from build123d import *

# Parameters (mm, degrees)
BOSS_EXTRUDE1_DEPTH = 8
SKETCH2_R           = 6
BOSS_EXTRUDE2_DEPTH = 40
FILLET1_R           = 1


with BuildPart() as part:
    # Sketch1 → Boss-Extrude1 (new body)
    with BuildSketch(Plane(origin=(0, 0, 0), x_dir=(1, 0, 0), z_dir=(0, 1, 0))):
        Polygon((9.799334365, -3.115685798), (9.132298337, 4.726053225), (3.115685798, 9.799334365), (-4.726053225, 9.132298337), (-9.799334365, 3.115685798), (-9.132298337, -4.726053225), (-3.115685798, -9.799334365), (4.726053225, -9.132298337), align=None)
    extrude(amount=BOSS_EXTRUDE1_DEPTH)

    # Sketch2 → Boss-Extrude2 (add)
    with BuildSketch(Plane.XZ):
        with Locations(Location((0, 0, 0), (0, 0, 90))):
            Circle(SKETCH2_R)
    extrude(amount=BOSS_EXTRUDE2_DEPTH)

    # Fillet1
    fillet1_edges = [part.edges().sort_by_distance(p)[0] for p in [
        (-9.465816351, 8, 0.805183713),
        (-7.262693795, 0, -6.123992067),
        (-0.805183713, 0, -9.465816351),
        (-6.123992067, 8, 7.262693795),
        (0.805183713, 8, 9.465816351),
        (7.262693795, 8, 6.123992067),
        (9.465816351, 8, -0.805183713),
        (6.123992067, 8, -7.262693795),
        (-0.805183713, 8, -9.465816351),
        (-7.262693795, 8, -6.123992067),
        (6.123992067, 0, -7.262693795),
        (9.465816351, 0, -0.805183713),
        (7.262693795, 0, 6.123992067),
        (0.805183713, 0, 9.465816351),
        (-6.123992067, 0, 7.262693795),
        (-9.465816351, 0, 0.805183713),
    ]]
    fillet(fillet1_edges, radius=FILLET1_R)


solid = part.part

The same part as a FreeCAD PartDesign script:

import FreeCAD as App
import Part
import Sketcher

V = App.Vector


def edges_at(feature, points):
    """Names of the edges that pass closest to the given points."""
    edges = feature.Shape.Edges
    near = lambda p: min(range(len(edges)), key=lambda i: edges[i].distToShape(Part.Vertex(*p))[0])
    return sorted({f"Edge{near(p) + 1}" for p in points})

doc = App.newDocument("Part")
body = doc.addObject("PartDesign::Body", "Body")

sketch1 = doc.addObject("Sketcher::SketchObject", "Sketch")
body.addObject(sketch1)
sketch1.AttachmentSupport = (doc.XZ_Plane, [""])
sketch1.MapMode = "FlatFace"
sketch1.addGeometry(Part.LineSegment(V(9.799334, 3.115686, 0), V(9.132298, -4.726053, 0)), False)
sketch1.addGeometry(Part.LineSegment(V(9.132298, -4.726053, 0), V(3.115686, -9.799334, 0)), False)
sketch1.addGeometry(Part.LineSegment(V(3.115686, -9.799334, 0), V(-4.726053, -9.132298, 0)), False)
sketch1.addGeometry(Part.LineSegment(V(-4.726053, -9.132298, 0), V(-9.799334, -3.115686, 0)), False)
sketch1.addGeometry(Part.LineSegment(V(-9.799334, -3.115686, 0), V(-9.132298, 4.726053, 0)), False)
sketch1.addGeometry(Part.LineSegment(V(-9.132298, 4.726053, 0), V(-3.115686, 9.799334, 0)), False)
sketch1.addGeometry(Part.LineSegment(V(-3.115686, 9.799334, 0), V(4.726053, 9.132298, 0)), False)
sketch1.addGeometry(Part.LineSegment(V(4.726053, 9.132298, 0), V(9.799334, 3.115686, 0)), False)
sketch1.addConstraint(Sketcher.Constraint("Coincident", 0, 2, 1, 1))
sketch1.addConstraint(Sketcher.Constraint("Coincident", 1, 2, 2, 1))
sketch1.addConstraint(Sketcher.Constraint("Coincident", 2, 2, 3, 1))
sketch1.addConstraint(Sketcher.Constraint("Coincident", 3, 2, 4, 1))
sketch1.addConstraint(Sketcher.Constraint("Coincident", 4, 2, 5, 1))
sketch1.addConstraint(Sketcher.Constraint("Coincident", 5, 2, 6, 1))
sketch1.addConstraint(Sketcher.Constraint("Coincident", 6, 2, 7, 1))
sketch1.addConstraint(Sketcher.Constraint("Coincident", 7, 2, 0, 1))
sketch1.addConstraint(Sketcher.Constraint("Symmetric", 0, 2, 4, 2, -1, 1))
sketch1.addConstraint(Sketcher.Constraint("Symmetric", 1, 2, 5, 2, -1, 1))
sketch1.addConstraint(Sketcher.Constraint("Symmetric", 2, 2, 6, 2, -1, 1))
sketch1.addConstraint(Sketcher.Constraint("Symmetric", 3, 2, 7, 2, -1, 1))
sketch1.addConstraint(Sketcher.Constraint("Perpendicular", 0, 2))
sketch1.addConstraint(Sketcher.Constraint("Perpendicular", 1, 3))
sketch1.addConstraint(Sketcher.Constraint("Equal", 0, 1))
sketch1.addConstraint(Sketcher.Constraint("Equal", 1, 2))
sketch1.addConstraint(Sketcher.Constraint("Equal", 2, 3))
sketch1.addConstraint(Sketcher.Constraint("DistanceX", -1, 1, 0, 2, 9.132298))
sketch1.addConstraint(Sketcher.Constraint("DistanceY", 1, 2, 0, 2, 5.073281))
sketch1.addConstraint(Sketcher.Constraint("DistanceX", 2, 2, 1, 2, 7.841739))
pad1 = doc.addObject("PartDesign::Pad", "Pad")
body.addObject(pad1)
pad1.Profile = sketch1
pad1.Length = 8
pad1.Reversed = True

sketch2 = doc.addObject("Sketcher::SketchObject", "Sketch001")
body.addObject(sketch2)
sketch2.AttachmentSupport = (doc.XZ_Plane, [""])
sketch2.MapMode = "FlatFace"
sketch2.addGeometry(Part.Circle(V(0, 0, 0), V(0, 0, 1), 6), False)
sketch2.addConstraint(Sketcher.Constraint("Coincident", 0, 3, -1, 1))
sketch2.addConstraint(Sketcher.Constraint("Diameter", 0, 12.0))
pad2 = doc.addObject("PartDesign::Pad", "Pad001")
body.addObject(pad2)
pad2.Profile = sketch2
pad2.Length = 40
doc.recompute()

fillet = doc.addObject("PartDesign::Fillet", "Fillet")
body.addObject(fillet)
fillet.Base = (pad2, edges_at(pad2, [
    (-9.466, 8, 0.805),
    (-7.263, 0, -6.124),
    (-0.805, 0, -9.466),
    (-6.124, 8, 7.263),
    (0.805, 8, 9.466),
    (7.263, 8, 6.124),
    (9.466, 8, -0.805),
    (6.124, 8, -7.263),
    (-0.805, 8, -9.466),
    (-7.263, 8, -6.124),
    (6.124, 0, -7.263),
    (9.466, 0, -0.805),
    (7.263, 0, 6.124),
    (0.805, 0, 9.466),
    (-6.124, 0, 7.263),
    (-9.466, 0, 0.805),
]))
fillet.Radius = 1

doc.recompute()
